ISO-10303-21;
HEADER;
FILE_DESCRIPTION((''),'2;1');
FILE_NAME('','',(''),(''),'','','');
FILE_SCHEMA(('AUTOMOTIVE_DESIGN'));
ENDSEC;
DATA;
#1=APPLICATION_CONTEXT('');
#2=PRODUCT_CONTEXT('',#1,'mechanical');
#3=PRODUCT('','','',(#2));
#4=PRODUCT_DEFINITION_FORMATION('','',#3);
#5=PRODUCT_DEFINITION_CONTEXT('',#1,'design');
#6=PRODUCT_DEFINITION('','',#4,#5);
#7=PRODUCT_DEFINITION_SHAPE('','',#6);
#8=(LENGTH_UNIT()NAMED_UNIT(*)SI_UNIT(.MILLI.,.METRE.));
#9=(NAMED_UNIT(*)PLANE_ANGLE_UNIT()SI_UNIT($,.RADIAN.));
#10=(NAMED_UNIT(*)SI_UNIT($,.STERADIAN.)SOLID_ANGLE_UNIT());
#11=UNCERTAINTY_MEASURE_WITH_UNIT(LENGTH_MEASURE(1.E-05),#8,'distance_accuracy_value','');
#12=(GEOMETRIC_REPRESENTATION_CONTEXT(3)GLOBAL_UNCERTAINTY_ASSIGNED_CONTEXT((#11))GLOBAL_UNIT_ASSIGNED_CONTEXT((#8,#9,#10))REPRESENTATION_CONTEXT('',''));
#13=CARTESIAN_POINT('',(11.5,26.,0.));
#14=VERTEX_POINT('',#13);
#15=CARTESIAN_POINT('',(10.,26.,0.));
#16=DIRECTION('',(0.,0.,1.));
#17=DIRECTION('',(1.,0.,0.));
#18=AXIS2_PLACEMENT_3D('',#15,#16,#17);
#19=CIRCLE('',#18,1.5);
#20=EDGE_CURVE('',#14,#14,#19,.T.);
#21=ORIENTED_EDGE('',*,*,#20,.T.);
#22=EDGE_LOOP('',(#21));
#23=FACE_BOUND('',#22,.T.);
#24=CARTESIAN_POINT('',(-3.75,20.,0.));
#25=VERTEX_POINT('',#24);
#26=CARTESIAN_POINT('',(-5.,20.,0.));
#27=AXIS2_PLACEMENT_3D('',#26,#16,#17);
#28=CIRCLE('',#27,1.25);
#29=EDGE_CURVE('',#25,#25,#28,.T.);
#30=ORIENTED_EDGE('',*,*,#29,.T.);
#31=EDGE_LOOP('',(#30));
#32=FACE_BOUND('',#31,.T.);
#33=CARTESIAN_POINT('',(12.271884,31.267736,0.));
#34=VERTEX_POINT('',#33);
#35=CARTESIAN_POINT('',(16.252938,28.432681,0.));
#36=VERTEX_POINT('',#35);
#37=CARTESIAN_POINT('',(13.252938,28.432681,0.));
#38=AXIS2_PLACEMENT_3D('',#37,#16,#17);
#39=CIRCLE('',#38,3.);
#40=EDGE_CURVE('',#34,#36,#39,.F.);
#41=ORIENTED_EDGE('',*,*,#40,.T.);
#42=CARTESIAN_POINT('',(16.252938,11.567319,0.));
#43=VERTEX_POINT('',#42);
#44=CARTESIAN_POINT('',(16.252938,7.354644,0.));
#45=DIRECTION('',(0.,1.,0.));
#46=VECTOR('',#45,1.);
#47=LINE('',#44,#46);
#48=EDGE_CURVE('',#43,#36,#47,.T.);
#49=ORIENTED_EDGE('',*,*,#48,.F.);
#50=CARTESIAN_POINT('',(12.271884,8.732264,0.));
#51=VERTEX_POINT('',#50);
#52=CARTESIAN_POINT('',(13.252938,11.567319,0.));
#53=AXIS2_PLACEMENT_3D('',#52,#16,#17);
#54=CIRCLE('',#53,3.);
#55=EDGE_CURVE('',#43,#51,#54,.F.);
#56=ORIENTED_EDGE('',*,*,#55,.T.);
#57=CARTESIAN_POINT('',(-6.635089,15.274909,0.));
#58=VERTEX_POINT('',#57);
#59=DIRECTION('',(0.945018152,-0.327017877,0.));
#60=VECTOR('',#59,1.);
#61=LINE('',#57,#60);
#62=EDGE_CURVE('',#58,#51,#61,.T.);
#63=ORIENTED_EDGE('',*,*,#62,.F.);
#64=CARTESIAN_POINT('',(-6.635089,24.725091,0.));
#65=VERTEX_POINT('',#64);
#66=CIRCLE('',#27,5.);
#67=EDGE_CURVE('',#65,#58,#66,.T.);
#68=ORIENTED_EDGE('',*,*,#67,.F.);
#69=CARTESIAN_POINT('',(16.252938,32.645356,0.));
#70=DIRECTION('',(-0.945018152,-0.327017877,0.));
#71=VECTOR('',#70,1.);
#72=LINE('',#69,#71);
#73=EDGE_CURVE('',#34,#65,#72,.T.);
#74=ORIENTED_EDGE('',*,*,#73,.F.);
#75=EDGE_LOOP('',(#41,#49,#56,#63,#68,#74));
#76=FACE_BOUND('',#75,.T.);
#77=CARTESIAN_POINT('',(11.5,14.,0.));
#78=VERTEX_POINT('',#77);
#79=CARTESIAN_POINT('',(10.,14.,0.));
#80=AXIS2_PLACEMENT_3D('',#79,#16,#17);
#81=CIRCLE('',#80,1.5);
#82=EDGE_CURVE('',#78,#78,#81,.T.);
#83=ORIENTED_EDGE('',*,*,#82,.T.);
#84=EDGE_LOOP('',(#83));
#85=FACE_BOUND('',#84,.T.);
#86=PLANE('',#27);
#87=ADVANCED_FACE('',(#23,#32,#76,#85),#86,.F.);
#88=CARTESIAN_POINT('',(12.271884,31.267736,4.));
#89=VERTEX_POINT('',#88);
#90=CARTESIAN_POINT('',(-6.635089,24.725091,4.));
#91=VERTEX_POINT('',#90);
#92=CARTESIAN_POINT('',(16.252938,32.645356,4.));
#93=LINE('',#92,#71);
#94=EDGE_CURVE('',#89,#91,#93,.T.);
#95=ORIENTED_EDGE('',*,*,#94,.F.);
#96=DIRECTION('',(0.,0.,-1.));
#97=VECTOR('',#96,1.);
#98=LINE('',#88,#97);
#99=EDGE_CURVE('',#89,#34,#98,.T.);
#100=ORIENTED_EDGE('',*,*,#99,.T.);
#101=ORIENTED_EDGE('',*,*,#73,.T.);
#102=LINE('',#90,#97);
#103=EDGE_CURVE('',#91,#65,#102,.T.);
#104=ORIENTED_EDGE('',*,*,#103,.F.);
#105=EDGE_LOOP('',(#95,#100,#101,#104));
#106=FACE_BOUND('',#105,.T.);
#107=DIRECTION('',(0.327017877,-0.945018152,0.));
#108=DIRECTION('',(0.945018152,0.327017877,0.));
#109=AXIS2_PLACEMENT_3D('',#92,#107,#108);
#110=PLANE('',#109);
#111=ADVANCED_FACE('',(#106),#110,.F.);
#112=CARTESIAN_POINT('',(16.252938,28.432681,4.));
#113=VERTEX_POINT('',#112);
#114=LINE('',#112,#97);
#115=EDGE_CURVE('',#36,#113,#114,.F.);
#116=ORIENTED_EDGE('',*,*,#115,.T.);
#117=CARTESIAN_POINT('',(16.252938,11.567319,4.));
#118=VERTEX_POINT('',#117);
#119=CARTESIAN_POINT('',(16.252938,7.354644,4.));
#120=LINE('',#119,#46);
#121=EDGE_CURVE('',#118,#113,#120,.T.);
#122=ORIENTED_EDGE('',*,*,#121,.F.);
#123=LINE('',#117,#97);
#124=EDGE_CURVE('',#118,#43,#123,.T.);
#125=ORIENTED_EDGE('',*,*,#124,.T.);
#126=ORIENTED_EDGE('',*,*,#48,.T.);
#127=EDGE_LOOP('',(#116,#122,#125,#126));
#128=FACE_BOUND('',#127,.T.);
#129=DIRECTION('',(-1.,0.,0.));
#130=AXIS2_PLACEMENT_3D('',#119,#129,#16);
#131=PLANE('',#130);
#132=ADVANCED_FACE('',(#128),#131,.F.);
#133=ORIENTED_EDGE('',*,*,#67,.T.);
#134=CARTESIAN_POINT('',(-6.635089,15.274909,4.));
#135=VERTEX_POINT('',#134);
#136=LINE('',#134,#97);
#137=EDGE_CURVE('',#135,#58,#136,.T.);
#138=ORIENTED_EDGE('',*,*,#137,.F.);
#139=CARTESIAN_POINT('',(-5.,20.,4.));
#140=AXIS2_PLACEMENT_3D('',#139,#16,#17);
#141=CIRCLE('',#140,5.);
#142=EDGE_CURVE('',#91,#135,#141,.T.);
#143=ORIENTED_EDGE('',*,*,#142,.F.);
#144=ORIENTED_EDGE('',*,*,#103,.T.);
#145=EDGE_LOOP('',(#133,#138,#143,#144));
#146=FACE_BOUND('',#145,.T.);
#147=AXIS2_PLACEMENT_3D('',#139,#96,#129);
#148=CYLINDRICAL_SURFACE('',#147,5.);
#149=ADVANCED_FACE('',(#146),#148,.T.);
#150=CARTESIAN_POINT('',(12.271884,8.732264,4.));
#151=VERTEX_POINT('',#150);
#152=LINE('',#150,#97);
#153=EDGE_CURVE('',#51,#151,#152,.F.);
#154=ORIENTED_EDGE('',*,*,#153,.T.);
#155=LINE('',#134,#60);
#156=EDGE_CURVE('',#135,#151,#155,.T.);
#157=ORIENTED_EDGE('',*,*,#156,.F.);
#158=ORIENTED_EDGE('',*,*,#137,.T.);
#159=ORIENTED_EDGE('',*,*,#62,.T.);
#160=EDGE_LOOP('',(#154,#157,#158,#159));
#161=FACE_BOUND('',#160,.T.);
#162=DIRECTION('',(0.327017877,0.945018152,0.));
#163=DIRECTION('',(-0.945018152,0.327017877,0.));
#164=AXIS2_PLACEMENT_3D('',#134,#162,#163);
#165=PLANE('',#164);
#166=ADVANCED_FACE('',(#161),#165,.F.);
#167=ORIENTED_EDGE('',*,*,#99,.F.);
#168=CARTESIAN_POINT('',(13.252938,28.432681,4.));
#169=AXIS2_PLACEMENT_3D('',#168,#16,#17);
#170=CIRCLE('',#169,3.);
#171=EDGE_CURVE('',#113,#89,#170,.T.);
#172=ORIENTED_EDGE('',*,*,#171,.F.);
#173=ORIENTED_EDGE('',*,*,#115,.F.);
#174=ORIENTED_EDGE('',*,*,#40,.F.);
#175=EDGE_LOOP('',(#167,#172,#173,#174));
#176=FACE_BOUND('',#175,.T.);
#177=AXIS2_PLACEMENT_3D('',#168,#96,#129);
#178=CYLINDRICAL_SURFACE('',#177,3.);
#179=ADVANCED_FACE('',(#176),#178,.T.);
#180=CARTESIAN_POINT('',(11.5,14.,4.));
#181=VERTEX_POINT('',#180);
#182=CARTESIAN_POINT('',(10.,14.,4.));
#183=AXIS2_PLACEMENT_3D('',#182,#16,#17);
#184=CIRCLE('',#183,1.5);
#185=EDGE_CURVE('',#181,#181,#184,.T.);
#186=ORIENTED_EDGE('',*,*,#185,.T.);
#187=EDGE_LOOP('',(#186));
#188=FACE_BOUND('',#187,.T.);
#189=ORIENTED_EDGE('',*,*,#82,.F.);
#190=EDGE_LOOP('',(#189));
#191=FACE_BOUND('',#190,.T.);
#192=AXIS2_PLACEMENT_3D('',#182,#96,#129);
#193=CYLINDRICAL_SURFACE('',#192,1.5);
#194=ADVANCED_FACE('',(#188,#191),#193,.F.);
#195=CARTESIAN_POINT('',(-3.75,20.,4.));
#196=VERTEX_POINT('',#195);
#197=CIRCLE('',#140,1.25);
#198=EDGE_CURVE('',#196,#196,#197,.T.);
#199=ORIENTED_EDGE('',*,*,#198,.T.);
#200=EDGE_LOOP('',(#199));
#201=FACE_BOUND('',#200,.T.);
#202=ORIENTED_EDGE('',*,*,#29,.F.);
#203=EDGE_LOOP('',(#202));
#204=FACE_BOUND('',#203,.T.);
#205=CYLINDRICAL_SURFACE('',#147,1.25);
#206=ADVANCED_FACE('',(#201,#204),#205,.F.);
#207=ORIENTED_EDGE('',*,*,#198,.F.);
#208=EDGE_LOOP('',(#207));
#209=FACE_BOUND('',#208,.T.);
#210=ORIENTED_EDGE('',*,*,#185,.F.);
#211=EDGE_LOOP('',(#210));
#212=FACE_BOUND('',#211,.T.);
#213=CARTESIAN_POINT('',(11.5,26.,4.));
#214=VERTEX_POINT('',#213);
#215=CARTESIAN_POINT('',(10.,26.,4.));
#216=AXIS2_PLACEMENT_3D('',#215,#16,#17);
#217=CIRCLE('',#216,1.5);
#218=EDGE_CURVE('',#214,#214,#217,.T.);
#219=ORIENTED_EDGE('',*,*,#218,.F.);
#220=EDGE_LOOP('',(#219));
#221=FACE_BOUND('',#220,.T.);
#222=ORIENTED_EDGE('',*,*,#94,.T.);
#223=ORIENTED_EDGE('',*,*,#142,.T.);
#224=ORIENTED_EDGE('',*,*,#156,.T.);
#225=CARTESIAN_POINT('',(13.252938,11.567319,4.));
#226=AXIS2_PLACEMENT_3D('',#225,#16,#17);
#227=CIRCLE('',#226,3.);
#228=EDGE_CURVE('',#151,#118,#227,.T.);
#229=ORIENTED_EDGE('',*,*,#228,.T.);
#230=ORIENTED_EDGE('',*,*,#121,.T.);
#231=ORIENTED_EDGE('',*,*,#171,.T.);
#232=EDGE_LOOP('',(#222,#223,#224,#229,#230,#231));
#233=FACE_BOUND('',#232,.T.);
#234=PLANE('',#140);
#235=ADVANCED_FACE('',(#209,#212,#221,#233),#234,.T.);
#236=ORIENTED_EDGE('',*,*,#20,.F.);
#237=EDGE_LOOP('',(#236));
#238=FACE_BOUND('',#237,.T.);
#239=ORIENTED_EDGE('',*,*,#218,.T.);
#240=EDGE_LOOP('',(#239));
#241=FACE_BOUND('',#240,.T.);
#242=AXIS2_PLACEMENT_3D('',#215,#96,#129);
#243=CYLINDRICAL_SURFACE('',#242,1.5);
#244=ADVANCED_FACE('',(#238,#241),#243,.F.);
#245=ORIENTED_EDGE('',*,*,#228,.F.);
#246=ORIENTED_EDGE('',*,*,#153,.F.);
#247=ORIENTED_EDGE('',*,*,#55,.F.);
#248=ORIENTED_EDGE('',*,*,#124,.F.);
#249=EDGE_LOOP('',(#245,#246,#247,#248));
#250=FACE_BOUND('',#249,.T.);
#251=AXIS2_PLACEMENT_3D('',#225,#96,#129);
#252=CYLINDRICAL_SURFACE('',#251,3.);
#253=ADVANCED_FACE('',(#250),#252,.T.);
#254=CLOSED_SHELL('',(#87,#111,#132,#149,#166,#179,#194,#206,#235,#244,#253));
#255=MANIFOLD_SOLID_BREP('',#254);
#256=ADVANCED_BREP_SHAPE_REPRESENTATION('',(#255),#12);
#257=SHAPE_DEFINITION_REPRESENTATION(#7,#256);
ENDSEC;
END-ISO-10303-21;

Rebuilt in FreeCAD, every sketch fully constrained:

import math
import FreeCAD as App
import Part
import Sketcher
from FreeCAD import Vector
Q = App.Units.Quantity


def edges_at(feature, points):
    """Names of the edges that pass closest to the given points."""
    edges = feature.Shape.Edges
    near = lambda p: min(range(len(edges)), key=lambda i: edges[i].distToShape(Part.Vertex(*p))[0])
    return sorted({f"Edge{near(p) + 1}" for p in points})

doc = App.newDocument("Part")
body = doc.addObject("PartDesign::Body", "Body")

# Sketch on XY plane
sketch1 = doc.addObject("Sketcher::SketchObject", "Sketch")
body.addObject(sketch1)
sketch1.AttachmentSupport = (doc.XY_Plane, [""])
sketch1.MapMode = "FlatFace"
sketch1.addGeometry([
    Part.LineSegment(Vector(-6.6, 15.3, 0), Vector(16.3, 7.4, 0)),  # 0
    Part.LineSegment(Vector(16.3, 7.4, 0), Vector(16.3, 32.6, 0)),  # 1
    Part.LineSegment(Vector(16.3, 32.6, 0), Vector(-6.6, 24.7, 0)),  # 2
    Part.ArcOfCircle(Part.Circle(Vector(-5, 20, 0), Vector(0, 0, 1), 5), math.radians(109), math.radians(251)),  # 3
    Part.Circle(Vector(10, 14, 0), Vector(0, 0, 1), 1.5),  # 4
    Part.Circle(Vector(-5, 20, 0), Vector(0, 0, 1), 1.2),  # 5
    Part.Circle(Vector(10, 26, 0), Vector(0, 0, 1), 1.5),  # 6
], False)
sketch1.addConstraint([
    Sketcher.Constraint("Coincident", 0, 2, 1, 1),
    Sketcher.Constraint("Coincident", 1, 2, 2, 1),
    Sketcher.Constraint("Tangent", 2, 2, 3, 1),
    Sketcher.Constraint("Tangent", 3, 2, 0, 1),
    Sketcher.Constraint("Vertical", 1),
    Sketcher.Constraint("Coincident", 5, 3, 3, 3),
    Sketcher.Constraint("Equal", 4, 6),
    Sketcher.Constraint("Vertical", 4, 3, 6, 3),
    Sketcher.Constraint("Vertical", 2, 2, 3, 2),
    Sketcher.Constraint("Diameter", 4, Q("3 mm")),
    Sketcher.Constraint("Radius", 3, Q("5 mm")),
    Sketcher.Constraint("Diameter", 5, Q("2.5 mm")),
    Sketcher.Constraint("DistanceX", 3, 3, -1, 1, Q("5 mm")),
    Sketcher.Constraint("DistanceY", -1, 1, 3, 3, Q("20 mm")),
    Sketcher.Constraint("DistanceX", -1, 1, 4, 3, Q("10 mm")),
    Sketcher.Constraint("DistanceY", -1, 1, 4, 3, Q("14 mm")),
    Sketcher.Constraint("DistanceY", -1, 1, 6, 3, Q("26 mm")),
    Sketcher.Constraint("DistanceY", 1, 1, 1, 2, Q("25.290711 mm")),
    Sketcher.Constraint("Distance", 0, Q("24.219669 mm")),
])
pad1 = doc.addObject("PartDesign::Pad", "Pad")
body.addObject(pad1)
pad1.Profile = sketch1
pad1.Length = 4
doc.recompute()

fillet = doc.addObject("PartDesign::Fillet", "Fillet")
body.addObject(fillet)
fillet.Base = (pad1, edges_at(pad1, [(16.253, 32.645, 2), (16.253, 7.355, 2)]))
fillet.Radius = 3

doc.recompute()
